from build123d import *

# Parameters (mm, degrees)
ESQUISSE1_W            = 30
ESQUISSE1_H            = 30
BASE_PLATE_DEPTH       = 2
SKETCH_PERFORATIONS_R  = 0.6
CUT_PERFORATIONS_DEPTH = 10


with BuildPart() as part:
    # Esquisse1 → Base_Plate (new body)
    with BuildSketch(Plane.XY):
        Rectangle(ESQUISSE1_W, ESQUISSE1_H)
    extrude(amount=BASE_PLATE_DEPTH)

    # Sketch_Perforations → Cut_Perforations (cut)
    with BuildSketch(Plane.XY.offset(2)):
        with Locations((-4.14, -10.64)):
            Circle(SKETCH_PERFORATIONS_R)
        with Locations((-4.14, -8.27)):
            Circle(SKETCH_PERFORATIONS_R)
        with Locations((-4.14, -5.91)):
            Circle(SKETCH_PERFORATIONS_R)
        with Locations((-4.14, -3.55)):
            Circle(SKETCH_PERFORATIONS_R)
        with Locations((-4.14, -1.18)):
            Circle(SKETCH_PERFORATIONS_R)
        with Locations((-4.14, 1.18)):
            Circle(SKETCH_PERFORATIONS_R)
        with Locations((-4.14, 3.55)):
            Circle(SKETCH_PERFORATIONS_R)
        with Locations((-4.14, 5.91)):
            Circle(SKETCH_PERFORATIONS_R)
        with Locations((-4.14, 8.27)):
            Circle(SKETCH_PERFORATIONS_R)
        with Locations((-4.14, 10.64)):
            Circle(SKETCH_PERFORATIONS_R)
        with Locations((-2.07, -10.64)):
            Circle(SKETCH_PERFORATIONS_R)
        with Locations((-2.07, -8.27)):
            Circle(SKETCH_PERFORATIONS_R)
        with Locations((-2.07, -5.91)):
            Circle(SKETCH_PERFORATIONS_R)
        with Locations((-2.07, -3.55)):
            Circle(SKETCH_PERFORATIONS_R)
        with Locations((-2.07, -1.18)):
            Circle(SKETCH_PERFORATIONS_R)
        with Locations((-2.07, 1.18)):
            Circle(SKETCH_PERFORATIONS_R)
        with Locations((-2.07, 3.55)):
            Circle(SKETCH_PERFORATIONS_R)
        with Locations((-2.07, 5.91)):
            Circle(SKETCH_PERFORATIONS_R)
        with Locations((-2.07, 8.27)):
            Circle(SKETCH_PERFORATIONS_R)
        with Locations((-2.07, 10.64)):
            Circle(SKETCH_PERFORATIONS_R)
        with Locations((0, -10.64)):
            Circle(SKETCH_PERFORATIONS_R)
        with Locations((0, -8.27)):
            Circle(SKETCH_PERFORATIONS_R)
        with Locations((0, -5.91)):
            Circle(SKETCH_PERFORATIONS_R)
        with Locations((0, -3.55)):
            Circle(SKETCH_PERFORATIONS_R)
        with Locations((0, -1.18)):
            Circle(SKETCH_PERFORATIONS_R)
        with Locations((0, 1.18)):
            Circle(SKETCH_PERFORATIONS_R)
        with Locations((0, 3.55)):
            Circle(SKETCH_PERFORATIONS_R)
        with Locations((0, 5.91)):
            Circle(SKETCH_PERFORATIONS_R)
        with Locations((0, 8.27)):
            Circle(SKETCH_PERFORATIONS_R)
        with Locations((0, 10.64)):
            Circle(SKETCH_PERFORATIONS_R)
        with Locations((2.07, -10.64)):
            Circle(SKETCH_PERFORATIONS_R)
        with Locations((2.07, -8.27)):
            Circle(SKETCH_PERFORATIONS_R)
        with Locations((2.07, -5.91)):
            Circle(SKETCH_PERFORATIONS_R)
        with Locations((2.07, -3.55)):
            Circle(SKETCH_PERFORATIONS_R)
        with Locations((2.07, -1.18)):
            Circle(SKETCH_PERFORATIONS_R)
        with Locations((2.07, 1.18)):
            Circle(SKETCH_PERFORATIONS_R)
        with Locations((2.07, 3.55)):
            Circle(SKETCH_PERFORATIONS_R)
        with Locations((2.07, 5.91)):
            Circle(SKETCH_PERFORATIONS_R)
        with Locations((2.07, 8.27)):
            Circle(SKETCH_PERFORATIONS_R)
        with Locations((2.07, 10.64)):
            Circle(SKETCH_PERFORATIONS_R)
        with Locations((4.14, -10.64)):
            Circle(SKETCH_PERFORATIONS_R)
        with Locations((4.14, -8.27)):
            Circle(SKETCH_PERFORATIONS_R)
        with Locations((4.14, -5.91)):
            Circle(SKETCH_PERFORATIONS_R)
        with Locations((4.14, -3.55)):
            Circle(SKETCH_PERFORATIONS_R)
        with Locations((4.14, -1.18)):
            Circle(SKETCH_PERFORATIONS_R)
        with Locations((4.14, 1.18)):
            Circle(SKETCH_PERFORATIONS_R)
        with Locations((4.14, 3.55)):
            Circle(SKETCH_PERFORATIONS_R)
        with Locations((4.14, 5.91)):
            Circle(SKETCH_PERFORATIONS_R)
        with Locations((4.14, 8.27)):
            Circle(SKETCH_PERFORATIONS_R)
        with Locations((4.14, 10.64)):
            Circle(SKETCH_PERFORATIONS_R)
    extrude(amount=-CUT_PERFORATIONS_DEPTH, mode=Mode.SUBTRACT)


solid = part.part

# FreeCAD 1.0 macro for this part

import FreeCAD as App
import Part
import Sketcher
from FreeCAD import Vector
Q = App.Units.Quantity

doc = App.newDocument("Part")
body = doc.addObject("PartDesign::Body", "Body")

sketch1 = body.newObject("Sketcher::SketchObject", "Sketch")
sketch1.AttachmentSupport = (doc.getObject("XY_Plane"), [""])
sketch1.MapMode = "FlatFace"
sketch1.addGeometry(Part.LineSegment(Vector(-15, 15, 0), Vector(-15, -15, 0)), False)
sketch1.addGeometry(Part.LineSegment(Vector(-15, -15, 0), Vector(15, -15, 0)), False)
sketch1.addGeometry(Part.LineSegment(Vector(15, -15, 0), Vector(15, 15, 0)), False)
sketch1.addGeometry(Part.LineSegment(Vector(15, 15, 0), Vector(-15, 15, 0)), False)
sketch1.addConstraint(Sketcher.Constraint("Coincident", 0, 2, 1, 1))
sketch1.addConstraint(Sketcher.Constraint("Coincident", 1, 2, 2, 1))
sketch1.addConstraint(Sketcher.Constraint("Coincident", 2, 2, 3, 1))
sketch1.addConstraint(Sketcher.Constraint("Coincident", 3, 2, 0, 1))
sketch1.addConstraint(Sketcher.Constraint("Vertical", 0))
sketch1.addConstraint(Sketcher.Constraint("Horizontal", 1))
sketch1.addConstraint(Sketcher.Constraint("Vertical", 2))
sketch1.addConstraint(Sketcher.Constraint("Horizontal", 3))
sketch1.addConstraint(Sketcher.Constraint("Symmetric", 0, 2, 2, 2, -1, 1))
sketch1.addConstraint(Sketcher.Constraint("Equal", 3, 0))
sketch1.addConstraint(Sketcher.Constraint("DistanceX", 1, 1, 1, 2, Q("30 mm")))
pad1 = body.newObject("PartDesign::Pad", "Pad")
pad1.Profile = sketch1
pad1.Length = 2

sketch2 = body.newObject("Sketcher::SketchObject", "Sketch001")
sketch2.AttachmentSupport = (doc.getObject("XY_Plane"), [""])
sketch2.MapMode = "FlatFace"
sketch2.AttachmentOffset = App.Placement(Vector(0, 0, 2), App.Rotation())
sketch2.addGeometry(Part.Circle(Vector(-4.1, -10.6, 0), Vector(0, 0, 1), 0.6), False)
sketch2.addGeometry(Part.Circle(Vector(-4.1, -8.3, 0), Vector(0, 0, 1), 0.6), False)
sketch2.addGeometry(Part.Circle(Vector(-4.1, -5.9, 0), Vector(0, 0, 1), 0.6), False)
sketch2.addGeometry(Part.Circle(Vector(-4.1, -3.5, 0), Vector(0, 0, 1), 0.6), False)
sketch2.addGeometry(Part.Circle(Vector(-4.1, -1.2, 0), Vector(0, 0, 1), 0.6), False)
sketch2.addGeometry(Part.Circle(Vector(-4.1, 1.2, 0), Vector(0, 0, 1), 0.6), False)
sketch2.addGeometry(Part.Circle(Vector(-4.1, 3.5, 0), Vector(0, 0, 1), 0.6), False)
sketch2.addGeometry(Part.Circle(Vector(-4.1, 5.9, 0), Vector(0, 0, 1), 0.6), False)
sketch2.addGeometry(Part.Circle(Vector(-4.1, 8.3, 0), Vector(0, 0, 1), 0.6), False)
sketch2.addGeometry(Part.Circle(Vector(-4.1, 10.6, 0), Vector(0, 0, 1), 0.6), False)
sketch2.addGeometry(Part.Circle(Vector(-2.1, -10.6, 0), Vector(0, 0, 1), 0.6), False)
sketch2.addGeometry(Part.Circle(Vector(-2.1, -8.3, 0), Vector(0, 0, 1), 0.6), False)
sketch2.addGeometry(Part.Circle(Vector(-2.1, -5.9, 0), Vector(0, 0, 1), 0.6), False)
sketch2.addGeometry(Part.Circle(Vector(-2.1, -3.5, 0), Vector(0, 0, 1), 0.6), False)
sketch2.addGeometry(Part.Circle(Vector(-2.1, -1.2, 0), Vector(0, 0, 1), 0.6), False)
sketch2.addGeometry(Part.Circle(Vector(-2.1, 1.2, 0), Vector(0, 0, 1), 0.6), False)
sketch2.addGeometry(Part.Circle(Vector(-2.1, 3.5, 0), Vector(0, 0, 1), 0.6), False)
sketch2.addGeometry(Part.Circle(Vector(-2.1, 5.9, 0), Vector(0, 0, 1), 0.6), False)
sketch2.addGeometry(Part.Circle(Vector(-2.1, 8.3, 0), Vector(0, 0, 1), 0.6), False)
sketch2.addGeometry(Part.Circle(Vector(-2.1, 10.6, 0), Vector(0, 0, 1), 0.6), False)
sketch2.addGeometry(Part.Circle(Vector(0, -10.6, 0), Vector(0, 0, 1), 0.6), False)
sketch2.addGeometry(Part.Circle(Vector(0, -8.3, 0), Vector(0, 0, 1), 0.6), False)
sketch2.addGeometry(Part.Circle(Vector(0, -5.9, 0), Vector(0, 0, 1), 0.6), False)
sketch2.addGeometry(Part.Circle(Vector(0, -3.5, 0), Vector(0, 0, 1), 0.6), False)
sketch2.addGeometry(Part.Circle(Vector(0, -1.2, 0), Vector(0, 0, 1), 0.6), False)
sketch2.addGeometry(Part.Circle(Vector(0, 1.2, 0), Vector(0, 0, 1), 0.6), False)
sketch2.addGeometry(Part.Circle(Vector(0, 3.5, 0), Vector(0, 0, 1), 0.6), False)
sketch2.addGeometry(Part.Circle(Vector(0, 5.9, 0), Vector(0, 0, 1), 0.6), False)
sketch2.addGeometry(Part.Circle(Vector(0, 8.3, 0), Vector(0, 0, 1), 0.6), False)
sketch2.addGeometry(Part.Circle(Vector(0, 10.6, 0), Vector(0, 0, 1), 0.6), False)
sketch2.addGeometry(Part.Circle(Vector(2.1, -10.6, 0), Vector(0, 0, 1), 0.6), False)
sketch2.addGeometry(Part.Circle(Vector(2.1, -8.3, 0), Vector(0, 0, 1), 0.6), False)
sketch2.addGeometry(Part.Circle(Vector(2.1, -5.9, 0), Vector(0, 0, 1), 0.6), False)
sketch2.addGeometry(Part.Circle(Vector(2.1, -3.5, 0), Vector(0, 0, 1), 0.6), False)
sketch2.addGeometry(Part.Circle(Vector(2.1, -1.2, 0), Vector(0, 0, 1), 0.6), False)
sketch2.addGeometry(Part.Circle(Vector(2.1, 1.2, 0), Vector(0, 0, 1), 0.6), False)
sketch2.addGeometry(Part.Circle(Vector(2.1, 3.5, 0), Vector(0, 0, 1), 0.6), False)
sketch2.addGeometry(Part.Circle(Vector(2.1, 5.9, 0), Vector(0, 0, 1), 0.6), False)
sketch2.addGeometry(Part.Circle(Vector(2.1, 8.3, 0), Vector(0, 0, 1), 0.6), False)
sketch2.addGeometry(Part.Circle(Vector(2.1, 10.6, 0), Vector(0, 0, 1), 0.6), False)
sketch2.addGeometry(Part.Circle(Vector(4.1, -10.6, 0), Vector(0, 0, 1), 0.6), False)
sketch2.addGeometry(Part.Circle(Vector(4.1, -8.3, 0), Vector(0, 0, 1), 0.6), False)
sketch2.addGeometry(Part.Circle(Vector(4.1, -5.9, 0), Vector(0, 0, 1), 0.6), False)
sketch2.addGeometry(Part.Circle(Vector(4.1, -3.5, 0), Vector(0, 0, 1), 0.6), False)
sketch2.addGeometry(Part.Circle(Vector(4.1, -1.2, 0), Vector(0, 0, 1), 0.6), False)
sketch2.addGeometry(Part.Circle(Vector(4.1, 1.2, 0), Vector(0, 0, 1), 0.6), False)
sketch2.addGeometry(Part.Circle(Vector(4.1, 3.5, 0), Vector(0, 0, 1), 0.6), False)
sketch2.addGeometry(Part.Circle(Vector(4.1, 5.9, 0), Vector(0, 0, 1), 0.6), False)
sketch2.addGeometry(Part.Circle(Vector(4.1, 8.3, 0), Vector(0, 0, 1), 0.6), False)
sketch2.addGeometry(Part.Circle(Vector(4.1, 10.6, 0), Vector(0, 0, 1), 0.6), False)
sketch2.addConstraint(Sketcher.Constraint("Equal", 0, 1))
sketch2.addConstraint(Sketcher.Constraint("Equal", 1, 2))
sketch2.addConstraint(Sketcher.Constraint("Equal", 2, 3))
sketch2.addConstraint(Sketcher.Constraint("Equal", 3, 4))
sketch2.addConstraint(Sketcher.Constraint("Equal", 4, 5))
sketch2.addConstraint(Sketcher.Constraint("Equal", 5, 6))
sketch2.addConstraint(Sketcher.Constraint("Equal", 6, 7))
sketch2.addConstraint(Sketcher.Constraint("Equal", 7, 8))
sketch2.addConstraint(Sketcher.Constraint("Equal", 8, 9))
sketch2.addConstraint(Sketcher.Constraint("Equal", 9, 10))
sketch2.addConstraint(Sketcher.Constraint("Equal", 10, 11))
sketch2.addConstraint(Sketcher.Constraint("Equal", 11, 12))
sketch2.addConstraint(Sketcher.Constraint("Equal", 12, 13))
sketch2.addConstraint(Sketcher.Constraint("Equal", 13, 14))
sketch2.addConstraint(Sketcher.Constraint("Equal", 14, 15))
sketch2.addConstraint(Sketcher.Constraint("Equal", 15, 16))
sketch2.addConstraint(Sketcher.Constraint("Equal", 16, 17))
sketch2.addConstraint(Sketcher.Constraint("Equal", 17, 18))
sketch2.addConstraint(Sketcher.Constraint("Equal", 18, 19))
sketch2.addConstraint(Sketcher.Constraint("Equal", 19, 20))
sketch2.addConstraint(Sketcher.Constraint("Equal", 20, 21))
sketch2.addConstraint(Sketcher.Constraint("Equal", 21, 22))
sketch2.addConstraint(Sketcher.Constraint("Equal", 22, 23))
sketch2.addConstraint(Sketcher.Constraint("Equal", 23, 24))
sketch2.addConstraint(Sketcher.Constraint("Equal", 24, 25))
sketch2.addConstraint(Sketcher.Constraint("Equal", 25, 26))
sketch2.addConstraint(Sketcher.Constraint("Equal", 26, 27))
sketch2.addConstraint(Sketcher.Constraint("Equal", 27, 28))
sketch2.addConstraint(Sketcher.Constraint("Equal", 28, 29))
sketch2.addConstraint(Sketcher.Constraint("Equal", 29, 30))
sketch2.addConstraint(Sketcher.Constraint("Equal", 30, 31))
sketch2.addConstraint(Sketcher.Constraint("Equal", 31, 32))
sketch2.addConstraint(Sketcher.Constraint("Equal", 32, 33))
sketch2.addConstraint(Sketcher.Constraint("Equal", 33, 34))
sketch2.addConstraint(Sketcher.Constraint("Equal", 34, 35))
sketch2.addConstraint(Sketcher.Constraint("Equal", 35, 36))
sketch2.addConstraint(Sketcher.Constraint("Equal", 36, 37))
sketch2.addConstraint(Sketcher.Constraint("Equal", 37, 38))
sketch2.addConstraint(Sketcher.Constraint("Equal", 38, 39))
sketch2.addConstraint(Sketcher.Constraint("Equal", 39, 40))
sketch2.addConstraint(Sketcher.Constraint("Equal", 40, 41))
sketch2.addConstraint(Sketcher.Constraint("Equal", 41, 42))
sketch2.addConstraint(Sketcher.Constraint("Equal", 42, 43))
sketch2.addConstraint(Sketcher.Constraint("Equal", 43, 44))
sketch2.addConstraint(Sketcher.Constraint("Equal", 44, 45))
sketch2.addConstraint(Sketcher.Constraint("Equal", 45, 46))
sketch2.addConstraint(Sketcher.Constraint("Equal", 46, 47))
sketch2.addConstraint(Sketcher.Constraint("Equal", 47, 48))
sketch2.addConstraint(Sketcher.Constraint("Equal", 48, 49))
sketch2.addConstraint(Sketcher.Constraint("Symmetric", 24, 3, 25, 3, -1, 1))
sketch2.addConstraint(Sketcher.Constraint("Symmetric", 23, 3, 26, 3, -1, 1))
sketch2.addConstraint(Sketcher.Constraint("Symmetric", 22, 3, 27, 3, -1, 1))
sketch2.addConstraint(Sketcher.Constraint("Symmetric", 21, 3, 28, 3, -1, 1))
sketch2.addConstraint(Sketcher.Constraint("Symmetric", 20, 3, 29, 3, -1, 1))
sketch2.addConstraint(Sketcher.Constraint("Symmetric", 19, 3, 30, 3, -1, 1))
sketch2.addConstraint(Sketcher.Constraint("Symmetric", 18, 3, 31, 3, -1, 1))
sketch2.addConstraint(Sketcher.Constraint("Symmetric", 17, 3, 32, 3, -1, 1))
sketch2.addConstraint(Sketcher.Constraint("Symmetric", 16, 3, 33, 3, -1, 1))
sketch2.addConstraint(Sketcher.Constraint("Symmetric", 15, 3, 34, 3, -1, 1))
sketch2.addConstraint(Sketcher.Constraint("Symmetric", 14, 3, 35, 3, -1, 1))
sketch2.addConstraint(Sketcher.Constraint("Symmetric", 13, 3, 36, 3, -1, 1))
sketch2.addConstraint(Sketcher.Constraint("Symmetric", 12, 3, 37, 3, -1, 1))
sketch2.addConstraint(Sketcher.Constraint("Symmetric", 11, 3, 38, 3, -1, 1))
sketch2.addConstraint(Sketcher.Constraint("Symmetric", 10, 3, 39, 3, -1, 1))
sketch2.addConstraint(Sketcher.Constraint("Symmetric", 9, 3, 40, 3, -1, 1))
sketch2.addConstraint(Sketcher.Constraint("Symmetric", 8, 3, 41, 3, -1, 1))
sketch2.addConstraint(Sketcher.Constraint("Symmetric", 7, 3, 42, 3, -1, 1))
sketch2.addConstraint(Sketcher.Constraint("Symmetric", 6, 3, 43, 3, -1, 1))
sketch2.addConstraint(Sketcher.Constraint("Symmetric", 5, 3, 44, 3, -1, 1))
sketch2.addConstraint(Sketcher.Constraint("Symmetric", 4, 3, 45, 3, -1, 1))
sketch2.addConstraint(Sketcher.Constraint("Symmetric", 3, 3, 46, 3, -1, 1))
sketch2.addConstraint(Sketcher.Constraint("Symmetric", 2, 3, 47, 3, -1, 1))
sketch2.addConstraint(Sketcher.Constraint("Symmetric", 1, 3, 48, 3, -1, 1))
sketch2.addConstraint(Sketcher.Constraint("Symmetric", 0, 3, 49, 3, -1, 1))
sketch2.addConstraint(Sketcher.Constraint("Symmetric", 10, 3, 30, 3, -2))
sketch2.addConstraint(Sketcher.Constraint("Symmetric", 11, 3, 31, 3, -2))
sketch2.addConstraint(Sketcher.Constraint("Symmetric", 12, 3, 32, 3, -2))
sketch2.addConstraint(Sketcher.Constraint("Symmetric", 13, 3, 33, 3, -2))
sketch2.addConstraint(Sketcher.Constraint("Symmetric", 14, 3, 34, 3, -2))
sketch2.addConstraint(Sketcher.Constraint("Symmetric", 0, 3, 40, 3, -2))
sketch2.addConstraint(Sketcher.Constraint("Symmetric", 1, 3, 41, 3, -2))
sketch2.addConstraint(Sketcher.Constraint("Symmetric", 2, 3, 42, 3, -2))
sketch2.addConstraint(Sketcher.Constraint("Symmetric", 3, 3, 43, 3, -2))
sketch2.addConstraint(Sketcher.Constraint("Symmetric", 4, 3, 44, 3, -2))
sketch2.addConstraint(Sketcher.Constraint("PointOnObject", 20, 3, -2))
sketch2.addConstraint(Sketcher.Constraint("PointOnObject", 21, 3, -2))
sketch2.addConstraint(Sketcher.Constraint("PointOnObject", 22, 3, -2))
sketch2.addConstraint(Sketcher.Constraint("PointOnObject", 23, 3, -2))
sketch2.addConstraint(Sketcher.Constraint("PointOnObject", 24, 3, -2))
sketch2.addConstraint(Sketcher.Constraint("Horizontal", 0, 3, 10, 3))
sketch2.addConstraint(Sketcher.Constraint("Horizontal", 1, 3, 11, 3))
sketch2.addConstraint(Sketcher.Constraint("Horizontal", 2, 3, 12, 3))
sketch2.addConstraint(Sketcher.Constraint("Horizontal", 3, 3, 13, 3))
sketch2.addConstraint(Sketcher.Constraint("Horizontal", 4, 3, 14, 3))
sketch2.addConstraint(Sketcher.Constraint("Horizontal", 10, 3, 20, 3))
sketch2.addConstraint(Sketcher.Constraint("Horizontal", 11, 3, 21, 3))
sketch2.addConstraint(Sketcher.Constraint("Horizontal", 12, 3, 22, 3))
sketch2.addConstraint(Sketcher.Constraint("Horizontal", 13, 3, 23, 3))
sketch2.addConstraint(Sketcher.Constraint("Horizontal", 14, 3, 24, 3))
sketch2.addConstraint(Sketcher.Constraint("Vertical", 0, 3, 1, 3))
sketch2.addConstraint(Sketcher.Constraint("Vertical", 1, 3, 2, 3))
sketch2.addConstraint(Sketcher.Constraint("Vertical", 2, 3, 3, 3))
sketch2.addConstraint(Sketcher.Constraint("Vertical", 3, 3, 4, 3))
sketch2.addConstraint(Sketcher.Constraint("Vertical", 10, 3, 11, 3))
sketch2.addConstraint(Sketcher.Constraint("Vertical", 11, 3, 12, 3))
sketch2.addConstraint(Sketcher.Constraint("Vertical", 12, 3, 13, 3))
sketch2.addConstraint(Sketcher.Constraint("Vertical", 13, 3, 14, 3))
sketch2.addConstraint(Sketcher.Constraint("Diameter", 0, Q("1.2 mm")))
sketch2.addConstraint(Sketcher.Constraint("DistanceY", 3, 3, 6, 3, Q("7.1 mm")))
sketch2.addConstraint(Sketcher.Constraint("DistanceX", 0, 3, -1, 1, Q("4.14 mm")))
sketch2.addConstraint(Sketcher.Constraint("DistanceY", 0, 3, -1, 1, Q("10.64 mm")))
sketch2.addConstraint(Sketcher.Constraint("DistanceY", 1, 3, -1, 1, Q("8.27 mm")))
sketch2.addConstraint(Sketcher.Constraint("DistanceY", 2, 3, -1, 1, Q("5.91 mm")))
sketch2.addConstraint(Sketcher.Constraint("DistanceY", 4, 3, -1, 1, Q("1.18 mm")))
sketch2.addConstraint(Sketcher.Constraint("DistanceX", 10, 3, -1, 1, Q("2.07 mm")))
pocket1 = body.newObject("PartDesign::Pocket", "Pocket")
pocket1.Profile = sketch2
pocket1.Length = 10

doc.recompute()
